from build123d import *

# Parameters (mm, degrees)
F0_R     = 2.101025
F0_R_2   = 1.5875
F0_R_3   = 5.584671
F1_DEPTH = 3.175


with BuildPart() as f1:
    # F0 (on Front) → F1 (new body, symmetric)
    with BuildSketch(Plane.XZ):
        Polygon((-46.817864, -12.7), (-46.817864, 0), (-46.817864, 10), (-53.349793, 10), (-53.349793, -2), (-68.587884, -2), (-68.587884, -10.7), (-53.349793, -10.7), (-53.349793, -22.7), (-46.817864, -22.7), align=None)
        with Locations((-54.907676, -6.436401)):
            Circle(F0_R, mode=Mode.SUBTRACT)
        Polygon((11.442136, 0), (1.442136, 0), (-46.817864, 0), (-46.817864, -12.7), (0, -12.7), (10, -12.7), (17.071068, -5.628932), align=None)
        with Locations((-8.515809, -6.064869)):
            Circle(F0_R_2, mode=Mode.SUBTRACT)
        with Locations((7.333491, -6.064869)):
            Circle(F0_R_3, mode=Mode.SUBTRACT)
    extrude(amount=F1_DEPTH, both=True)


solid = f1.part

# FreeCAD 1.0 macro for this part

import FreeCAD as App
import Part
import Sketcher
from FreeCAD import Vector
Q = App.Units.Quantity


def add_polygon(sketch, points):
    """Adds a closed chain of lines whose ends are joined by coincident constraints."""
    first, n = sketch.GeometryCount, len(points)
    for a, b in zip(points, points[1:] + points[:1]):
        sketch.addGeometry(Part.LineSegment(App.Vector(*a, 0), App.Vector(*b, 0)), False)
    for i in range(n):
        sketch.addConstraint(Sketcher.Constraint("Coincident", first + i, 2, first + (i + 1) % n, 1))

doc = App.newDocument("Part")
params = doc.addObject("Spreadsheet::Sheet", "Params")
for row, (alias, value) in enumerate([
    ("sketch1_height", "12 mm"),
    ("sketch1_height2", "10 mm"),
    ("sketch1_length", "10 mm"),
    ("sketch1_height3", "8.7 mm"),
    ("sketch1_width", "58.26 mm"),
    ("pad1_length", "6.35 mm"),
], start=1):
    params.set(f"A{row}", alias)
    params.set(f"B{row}", "=" + value)
    params.setAlias(f"B{row}", alias)

body = doc.addObject("PartDesign::Body", "Body")

sketch1 = body.newObject("Sketcher::SketchObject", "Sketch")
sketch1.AttachmentSupport = (doc.getObject("XZ_Plane"), [""])
sketch1.MapMode = "FlatFace"
add_polygon(sketch1, [(-46.8, 10), (-53.3, 10), (-53.3, -2), (-68.6, -2), (-68.6, -10.7), (-53.3, -10.7), (-53.3, -22.7), (-46.8, -22.7), (-46.8, -12.7), (10, -12.7), (17.1, -5.6), (11.4, 0), (-46.8, 0)])
sketch1.addGeometry(Part.Circle(Vector(-54.9, -6.4, 0), Vector(0, 0, 1), 2.1), False)
sketch1.addGeometry(Part.Circle(Vector(-8.5, -6.1, 0), Vector(0, 0, 1), 1.6), False)
sketch1.addGeometry(Part.Circle(Vector(7.3, -6.1, 0), Vector(0, 0, 1), 5.6), False)
sketch1.addConstraint([
    Sketcher.Constraint("Horizontal", 0),
    Sketcher.Constraint("Vertical", 1),
    Sketcher.Constraint("Horizontal", 2),
    Sketcher.Constraint("Vertical", 3),
    Sketcher.Constraint("Horizontal", 4),
    Sketcher.Constraint("Vertical", 5),
    Sketcher.Constraint("Horizontal", 6),
    Sketcher.Constraint("Vertical", 7),
    Sketcher.Constraint("Horizontal", 8),
    Sketcher.Constraint("Horizontal", 11),
    Sketcher.Constraint("Vertical", 12),
    Sketcher.Constraint("PointOnObject", 10, 2, -1),
    Sketcher.Constraint("Perpendicular", 9, 10),
    Sketcher.Constraint("Horizontal", 14, 3, 15, 3),
    Sketcher.Constraint("Vertical", 1, 2, 4, 2),
    Sketcher.Constraint("Vertical", 7, 2, 11, 2),
    Sketcher.Constraint("Equal", 1, 5),
    Sketcher.Constraint("Equal", 7, 12),
    Sketcher.Constraint("DistanceY", 1, 2, 1, 1, 12.0),
    Sketcher.Constraint("DistanceY", 7, 1, 7, 2, 10.0),
    Sketcher.Constraint("Angle", 9, Q("45 deg")),
    Sketcher.Constraint("Distance", 9, 10.0),
    Sketcher.Constraint("Diameter", 14, 3.175),
    Sketcher.Constraint("DistanceY", 3, 2, 3, 1, 8.7),
    Sketcher.Constraint("DistanceX", -1, 1, 8, 2, 10.0),
    Sketcher.Constraint("DistanceX", 11, 2, 11, 1, 58.26),
    Sketcher.Constraint("Diameter", 13, 4.20205),
    Sketcher.Constraint("Diameter", 15, 11.169342),
    Sketcher.Constraint("DistanceX", 0, 2, 0, 1, 6.531929),
    Sketcher.Constraint("DistanceX", 2, 2, 2, 1, 15.238091),
    Sketcher.Constraint("DistanceY", 13, 3, -1, 1, 6.436401),
    Sketcher.Constraint("DistanceX", 14, 3, 15, 3, 15.8493),
    Sketcher.Constraint("DistanceX", 14, 3, -1, 1, 8.515809),
    Sketcher.Constraint("DistanceY", 14, 3, -1, 1, 6.064869),
    Sketcher.Constraint("DistanceX", 13, 3, -1, 1, 54.907676),
])
sketch1.setExpression("Constraints[31]", "Params.sketch1_height")
sketch1.setExpression("Constraints[32]", "Params.sketch1_height2")
sketch1.setExpression("Constraints[34]", "Params.sketch1_length")
sketch1.setExpression("Constraints[36]", "Params.sketch1_height3")
sketch1.setExpression("Constraints[38]", "Params.sketch1_width")
pad1 = body.newObject("PartDesign::Pad", "Pad")
pad1.Profile = sketch1
pad1.setExpression("Length", "Params.pad1_length")
pad1.Midplane = True

doc.recompute()
